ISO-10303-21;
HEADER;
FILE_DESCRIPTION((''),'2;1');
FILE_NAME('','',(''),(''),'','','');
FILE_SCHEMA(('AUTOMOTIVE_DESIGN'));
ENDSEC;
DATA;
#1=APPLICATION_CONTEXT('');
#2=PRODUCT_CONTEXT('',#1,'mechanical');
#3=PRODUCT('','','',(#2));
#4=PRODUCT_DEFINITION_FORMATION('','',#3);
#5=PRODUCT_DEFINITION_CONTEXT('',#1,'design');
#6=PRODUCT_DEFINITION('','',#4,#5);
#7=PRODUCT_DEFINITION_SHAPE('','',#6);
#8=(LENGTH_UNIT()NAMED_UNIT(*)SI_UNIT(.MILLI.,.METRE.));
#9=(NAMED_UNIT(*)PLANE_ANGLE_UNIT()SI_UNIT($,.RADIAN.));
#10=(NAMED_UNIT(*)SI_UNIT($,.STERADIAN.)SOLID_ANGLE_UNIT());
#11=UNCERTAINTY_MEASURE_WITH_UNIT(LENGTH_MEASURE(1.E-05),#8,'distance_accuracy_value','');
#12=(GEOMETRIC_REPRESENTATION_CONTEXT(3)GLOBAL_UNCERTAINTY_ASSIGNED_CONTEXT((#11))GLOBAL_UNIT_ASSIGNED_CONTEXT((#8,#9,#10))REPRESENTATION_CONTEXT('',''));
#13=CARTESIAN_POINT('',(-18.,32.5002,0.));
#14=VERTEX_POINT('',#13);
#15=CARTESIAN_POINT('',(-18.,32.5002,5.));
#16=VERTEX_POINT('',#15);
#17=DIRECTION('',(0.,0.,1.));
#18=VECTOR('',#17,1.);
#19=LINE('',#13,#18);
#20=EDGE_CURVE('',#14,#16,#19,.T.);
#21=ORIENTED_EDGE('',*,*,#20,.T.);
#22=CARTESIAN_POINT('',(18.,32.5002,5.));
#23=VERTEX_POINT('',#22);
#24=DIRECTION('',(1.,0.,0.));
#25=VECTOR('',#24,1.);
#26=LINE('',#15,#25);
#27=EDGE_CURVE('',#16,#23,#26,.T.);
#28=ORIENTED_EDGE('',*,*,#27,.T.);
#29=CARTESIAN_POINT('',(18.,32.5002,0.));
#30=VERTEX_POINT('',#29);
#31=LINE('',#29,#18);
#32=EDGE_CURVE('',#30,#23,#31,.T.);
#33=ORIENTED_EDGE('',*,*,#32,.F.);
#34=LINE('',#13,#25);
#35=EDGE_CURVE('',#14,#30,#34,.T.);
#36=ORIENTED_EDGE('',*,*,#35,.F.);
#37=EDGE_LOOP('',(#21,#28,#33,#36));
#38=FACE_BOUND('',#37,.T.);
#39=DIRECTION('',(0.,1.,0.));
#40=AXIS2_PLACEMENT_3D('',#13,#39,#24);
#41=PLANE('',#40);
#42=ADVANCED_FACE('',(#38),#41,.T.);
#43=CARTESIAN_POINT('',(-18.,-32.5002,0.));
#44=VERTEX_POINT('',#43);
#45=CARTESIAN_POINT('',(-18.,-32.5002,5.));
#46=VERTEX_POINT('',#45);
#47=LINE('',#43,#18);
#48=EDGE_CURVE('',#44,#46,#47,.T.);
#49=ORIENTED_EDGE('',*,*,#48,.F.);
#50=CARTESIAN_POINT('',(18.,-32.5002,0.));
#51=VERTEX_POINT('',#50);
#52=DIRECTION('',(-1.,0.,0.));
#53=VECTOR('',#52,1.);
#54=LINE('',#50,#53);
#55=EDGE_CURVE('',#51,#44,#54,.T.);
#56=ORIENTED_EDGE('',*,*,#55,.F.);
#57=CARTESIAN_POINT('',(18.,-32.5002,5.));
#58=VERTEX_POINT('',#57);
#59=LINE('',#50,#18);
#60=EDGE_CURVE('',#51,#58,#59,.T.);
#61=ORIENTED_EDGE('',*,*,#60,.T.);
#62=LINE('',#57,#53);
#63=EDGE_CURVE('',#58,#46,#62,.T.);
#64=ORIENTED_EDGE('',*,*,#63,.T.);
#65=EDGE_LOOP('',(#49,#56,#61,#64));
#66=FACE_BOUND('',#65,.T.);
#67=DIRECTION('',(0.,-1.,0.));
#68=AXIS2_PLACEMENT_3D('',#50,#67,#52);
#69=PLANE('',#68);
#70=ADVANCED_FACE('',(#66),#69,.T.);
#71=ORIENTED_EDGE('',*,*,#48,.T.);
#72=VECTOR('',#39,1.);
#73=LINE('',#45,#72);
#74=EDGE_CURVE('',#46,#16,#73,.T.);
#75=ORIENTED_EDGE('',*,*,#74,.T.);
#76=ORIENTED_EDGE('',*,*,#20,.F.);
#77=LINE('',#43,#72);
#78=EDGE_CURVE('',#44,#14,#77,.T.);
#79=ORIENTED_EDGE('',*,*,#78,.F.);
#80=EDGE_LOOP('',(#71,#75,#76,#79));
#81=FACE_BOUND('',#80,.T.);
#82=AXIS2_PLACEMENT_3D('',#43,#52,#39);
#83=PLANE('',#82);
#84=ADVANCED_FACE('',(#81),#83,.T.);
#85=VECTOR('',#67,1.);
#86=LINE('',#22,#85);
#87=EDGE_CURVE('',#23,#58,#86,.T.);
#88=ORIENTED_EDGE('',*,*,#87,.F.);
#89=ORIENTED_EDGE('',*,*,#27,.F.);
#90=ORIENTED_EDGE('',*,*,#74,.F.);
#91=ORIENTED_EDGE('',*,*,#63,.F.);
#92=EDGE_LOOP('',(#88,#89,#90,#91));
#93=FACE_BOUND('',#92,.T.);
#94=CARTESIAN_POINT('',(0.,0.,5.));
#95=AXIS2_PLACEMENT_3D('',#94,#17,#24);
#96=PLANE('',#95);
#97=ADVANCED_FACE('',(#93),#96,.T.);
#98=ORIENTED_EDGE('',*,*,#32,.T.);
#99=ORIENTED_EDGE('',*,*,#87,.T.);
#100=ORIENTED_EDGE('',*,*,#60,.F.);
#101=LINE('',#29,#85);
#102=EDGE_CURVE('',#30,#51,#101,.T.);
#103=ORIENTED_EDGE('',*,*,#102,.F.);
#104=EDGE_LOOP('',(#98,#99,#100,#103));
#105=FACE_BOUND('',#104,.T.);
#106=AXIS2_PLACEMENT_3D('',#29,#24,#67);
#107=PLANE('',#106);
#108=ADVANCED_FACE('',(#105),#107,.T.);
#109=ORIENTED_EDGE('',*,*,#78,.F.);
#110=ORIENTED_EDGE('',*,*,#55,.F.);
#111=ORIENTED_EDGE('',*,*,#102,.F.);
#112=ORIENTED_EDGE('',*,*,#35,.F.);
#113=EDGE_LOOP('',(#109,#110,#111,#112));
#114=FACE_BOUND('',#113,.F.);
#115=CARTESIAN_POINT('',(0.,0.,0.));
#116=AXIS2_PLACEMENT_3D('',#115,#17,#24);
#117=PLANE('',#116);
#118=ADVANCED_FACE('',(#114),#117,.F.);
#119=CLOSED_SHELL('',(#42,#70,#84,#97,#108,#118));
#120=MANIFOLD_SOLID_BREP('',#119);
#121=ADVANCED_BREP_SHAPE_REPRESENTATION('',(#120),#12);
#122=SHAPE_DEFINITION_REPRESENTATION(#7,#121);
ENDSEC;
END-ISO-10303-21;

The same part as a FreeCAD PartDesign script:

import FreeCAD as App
import Part
import Sketcher
from FreeCAD import Vector
Q = App.Units.Quantity


def add_polygon(sketch, points):
    """Adds a closed chain of lines whose ends are joined by coincident constraints."""
    first, n = sketch.GeometryCount, len(points)
    for a, b in zip(points, points[1:] + points[:1]):
        sketch.addGeometry(Part.LineSegment(App.Vector(*a, 0), App.Vector(*b, 0)), False)
    for i in range(n):
        sketch.addConstraint(Sketcher.Constraint("Coincident", first + i, 2, first + (i + 1) % n, 1))

doc = App.newDocument("Part")
body = doc.addObject("PartDesign::Body", "Body")

# Sketch on XY plane
sketch1 = body.newObject("Sketcher::SketchObject", "Sketch")
sketch1.AttachmentSupport = (doc.getObject("XY_Plane"), [""])
sketch1.MapMode = "FlatFace"
add_polygon(sketch1, [(18, 32.5002), (-18, 32.5002), (-18, -32.5002), (18, -32.5002)])  # lines 0-3
sketch1.addConstraint([
    Sketcher.Constraint("Horizontal", 0),
    Sketcher.Constraint("Vertical", 1),
    Sketcher.Constraint("Horizontal", 2),
    Sketcher.Constraint("Vertical", 3),
    Sketcher.Constraint("Symmetric", 0, 2, 2, 2, -1, 1),
    Sketcher.Constraint("DistanceX", 0, 2, 0, 1, Q("36 mm")),
    Sketcher.Constraint("DistanceY", 1, 2, 1, 1, Q("65.0004 mm")),
])
pad1 = body.newObject("PartDesign::Pad", "Pad")
pad1.Profile = sketch1
pad1.Length = 5

doc.recompute()
